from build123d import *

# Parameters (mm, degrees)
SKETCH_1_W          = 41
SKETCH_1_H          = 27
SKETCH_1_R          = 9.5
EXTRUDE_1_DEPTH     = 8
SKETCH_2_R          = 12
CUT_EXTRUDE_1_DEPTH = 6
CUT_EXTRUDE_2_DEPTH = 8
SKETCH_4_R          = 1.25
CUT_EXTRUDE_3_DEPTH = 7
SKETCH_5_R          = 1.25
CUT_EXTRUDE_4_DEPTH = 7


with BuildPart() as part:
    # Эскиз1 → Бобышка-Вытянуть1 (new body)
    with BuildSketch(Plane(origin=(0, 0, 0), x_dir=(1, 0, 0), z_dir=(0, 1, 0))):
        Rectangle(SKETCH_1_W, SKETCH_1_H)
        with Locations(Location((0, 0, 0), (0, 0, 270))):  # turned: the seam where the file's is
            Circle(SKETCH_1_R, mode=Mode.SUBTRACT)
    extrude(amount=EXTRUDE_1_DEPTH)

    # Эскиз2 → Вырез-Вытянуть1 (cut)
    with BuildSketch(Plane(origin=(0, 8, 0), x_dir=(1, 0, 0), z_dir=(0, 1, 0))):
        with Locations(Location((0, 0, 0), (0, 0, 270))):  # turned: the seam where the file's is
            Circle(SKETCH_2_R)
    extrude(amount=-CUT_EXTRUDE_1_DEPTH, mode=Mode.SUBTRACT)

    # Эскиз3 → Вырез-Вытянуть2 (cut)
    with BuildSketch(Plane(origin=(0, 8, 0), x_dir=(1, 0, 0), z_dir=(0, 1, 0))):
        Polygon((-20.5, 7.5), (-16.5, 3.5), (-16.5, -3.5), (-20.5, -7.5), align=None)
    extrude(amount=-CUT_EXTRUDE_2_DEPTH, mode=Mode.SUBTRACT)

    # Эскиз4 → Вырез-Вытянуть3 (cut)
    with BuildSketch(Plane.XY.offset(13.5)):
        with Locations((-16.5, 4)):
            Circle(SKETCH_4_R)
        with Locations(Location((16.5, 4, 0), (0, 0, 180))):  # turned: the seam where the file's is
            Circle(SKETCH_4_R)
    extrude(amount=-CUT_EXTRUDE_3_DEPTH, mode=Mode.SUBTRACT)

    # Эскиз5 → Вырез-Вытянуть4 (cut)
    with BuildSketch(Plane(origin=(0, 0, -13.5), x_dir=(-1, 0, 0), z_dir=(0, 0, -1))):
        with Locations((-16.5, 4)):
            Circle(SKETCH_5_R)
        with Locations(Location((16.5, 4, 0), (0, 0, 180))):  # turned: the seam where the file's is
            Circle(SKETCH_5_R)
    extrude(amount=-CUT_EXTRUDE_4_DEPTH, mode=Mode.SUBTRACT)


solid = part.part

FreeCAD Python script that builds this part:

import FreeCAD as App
import Part
import Sketcher
Q = App.Units.Quantity


def add_polygon(sketch, points):
    """Adds a closed chain of lines whose ends are joined by coincident constraints."""
    first, n = sketch.GeometryCount, len(points)
    for a, b in zip(points, points[1:] + points[:1]):
        sketch.addGeometry(Part.LineSegment(App.Vector(*a, 0), App.Vector(*b, 0)), False)
    for i in range(n):
        sketch.addConstraint(Sketcher.Constraint("Coincident", first + i, 2, first + (i + 1) % n, 1))

doc = App.newDocument("Part")
params = doc.addObject("Spreadsheet::Sheet", "Params")
for row, (alias, value) in enumerate([
    ("sketch1_diameter", "19 mm"),
    ("sketch1_width", "41 mm"),
    ("sketch1_height", "27 mm"),
    ("pad1_length", "8 mm"),
    ("sketch2_diameter", "24 mm"),
    ("pocket1_length", "6 mm"),
    ("sketch3_height", "15 mm"),
    ("sketch3_height2", "7 mm"),
    ("pocket2_length", "8 mm"),
    ("sketch4_diameter", "2.5 mm"),
    ("pocket3_length", "7 mm"),
    ("sketch5_diameter", "2.5 mm"),
    ("pocket4_length", "7 mm"),
], start=1):
    params.set(f"A{row}", alias)
    params.set(f"B{row}", "=" + value)
    params.setAlias(f"B{row}", alias)

body = doc.addObject("PartDesign::Body", "Body")

# Sketch on XZ plane
sketch1 = body.newObject("Sketcher::SketchObject", "Sketch")
sketch1.AttachmentSupport = (doc.getObject("XZ_Plane"), [""])
sketch1.MapMode = "FlatFace"
add_polygon(sketch1, [(-20.5, -13.5), (-20.5, 13.5), (20.5, 13.5), (20.5, -13.5)])  # lines 0-3
sketch1.addGeometry(Part.Circle(App.Vector(0, 0, 0), App.Vector(0, 0, 1), 9.5), False)  # 4
sketch1.addConstraint([
    Sketcher.Constraint("Vertical", 0),
    Sketcher.Constraint("Horizontal", 1),
    Sketcher.Constraint("Vertical", 2),
    Sketcher.Constraint("Horizontal", 3),
    Sketcher.Constraint("Coincident", 4, 3, -1, 1),
    Sketcher.Constraint("Symmetric", 0, 2, 2, 2, -1, 1),
    Sketcher.Constraint("Diameter", 4, Q("19 mm")),
    Sketcher.Constraint("DistanceX", 1, 1, 1, 2, Q("41 mm")),
    Sketcher.Constraint("DistanceY", 0, 1, 0, 2, Q("27 mm")),
])
sketch1.setExpression("Constraints[10]", "Params.sketch1_diameter")
sketch1.setExpression("Constraints[11]", "Params.sketch1_width")
sketch1.setExpression("Constraints[12]", "Params.sketch1_height")
pad1 = body.newObject("PartDesign::Pad", "Pad")
pad1.Profile = sketch1
pad1.setExpression("Length", "Params.pad1_length")
pad1.Reversed = True

# Sketch on XZ plane
sketch2 = body.newObject("Sketcher::SketchObject", "Sketch001")
sketch2.AttachmentSupport = (doc.getObject("XZ_Plane"), [""])
sketch2.MapMode = "FlatFace"
sketch2.AttachmentOffset = App.Placement(App.Vector(0, 0, -8), App.Rotation())
sketch2.addGeometry(Part.Circle(App.Vector(0, 0, 0), App.Vector(0, 0, 1), 12), False)
sketch2.addConstraint([
    Sketcher.Constraint("Coincident", 0, 3, -1, 1),
    Sketcher.Constraint("Diameter", 0, Q("24 mm")),
])
sketch2.setExpression("Constraints[1]", "Params.sketch2_diameter")
pocket1 = body.newObject("PartDesign::Pocket", "Pocket")
pocket1.Profile = sketch2
pocket1.setExpression("Length", "Params.pocket1_length")
pocket1.Reversed = True

# Sketch on XZ plane
sketch3 = body.newObject("Sketcher::SketchObject", "Sketch002")
sketch3.AttachmentSupport = (doc.getObject("XZ_Plane"), [""])
sketch3.MapMode = "FlatFace"
sketch3.AttachmentOffset = App.Placement(App.Vector(0, 0, -8), App.Rotation())
add_polygon(sketch3, [(-16.5, -3.5), (-20.5, -7.5), (-20.5, 7.5), (-16.5, 3.5)])  # lines 0-3
sketch3.addConstraint([
    Sketcher.Constraint("Vertical", 1),
    Sketcher.Constraint("Vertical", 3),
    Sketcher.Constraint("Perpendicular", 0, 2),
    Sketcher.Constraint("Equal", 0, 2),
    Sketcher.Constraint("DistanceY", 1, 1, 1, 2, Q("15 mm")),
    Sketcher.Constraint("DistanceY", 3, 2, 3, 1, Q("7 mm")),
    Sketcher.Constraint("DistanceX", 0, 2, -1, 1, Q("20.5 mm")),
    Sketcher.Constraint("DistanceY", 0, 2, -1, 1, Q("7.5 mm")),
])
sketch3.setExpression("Constraints[8]", "Params.sketch3_height")
sketch3.setExpression("Constraints[9]", "Params.sketch3_height2")
pocket2 = body.newObject("PartDesign::Pocket", "Pocket001")
pocket2.Profile = sketch3
pocket2.setExpression("Length", "Params.pocket2_length")
pocket2.Reversed = True

# Sketch on XY plane
sketch4 = body.newObject("Sketcher::SketchObject", "Sketch003")
sketch4.AttachmentSupport = (doc.getObject("XY_Plane"), [""])
sketch4.MapMode = "FlatFace"
sketch4.AttachmentOffset = App.Placement(App.Vector(0, 0, 13.5), App.Rotation())
sketch4.addGeometry([
    Part.Circle(App.Vector(-16.5, 4, 0), App.Vector(0, 0, 1), 1.25),
    Part.Circle(App.Vector(16.5, 4, 0), App.Vector(0, 0, 1), 1.25),
], False)
sketch4.addConstraint([
    Sketcher.Constraint("Equal", 0, 1),
    Sketcher.Constraint("Symmetric", 0, 3, 1, 3, -2),
    Sketcher.Constraint("Diameter", 0, Q("2.5 mm")),
    Sketcher.Constraint("DistanceY", -1, 1, 0, 3, Q("4 mm")),
    Sketcher.Constraint("DistanceX", 0, 3, 1, 3, Q("33 mm")),
])
sketch4.setExpression("Constraints[2]", "Params.sketch4_diameter")
pocket3 = body.newObject("PartDesign::Pocket", "Pocket002")
pocket3.Profile = sketch4
pocket3.setExpression("Length", "Params.pocket3_length")

# Sketch on XY plane
sketch5 = body.newObject("Sketcher::SketchObject", "Sketch004")
sketch5.AttachmentSupport = (doc.getObject("XY_Plane"), [""])
sketch5.MapMode = "FlatFace"
sketch5.AttachmentOffset = App.Placement(App.Vector(0, 0, -13.5), App.Rotation())
sketch5.addGeometry([
    Part.Circle(App.Vector(16.5, 4, 0), App.Vector(0, 0, 1), 1.25),
    Part.Circle(App.Vector(-16.5, 4, 0), App.Vector(0, 0, 1), 1.25),
], False)
sketch5.addConstraint([
    Sketcher.Constraint("Equal", 0, 1),
    Sketcher.Constraint("Symmetric", 0, 3, 1, 3, -2),
    Sketcher.Constraint("Diameter", 0, Q("2.5 mm")),
    Sketcher.Constraint("DistanceY", -1, 1, 0, 3, Q("4 mm")),
    Sketcher.Constraint("DistanceX", 1, 3, 0, 3, Q("33 mm")),
])
sketch5.setExpression("Constraints[2]", "Params.sketch5_diameter")
pocket4 = body.newObject("PartDesign::Pocket", "Pocket003")
pocket4.Profile = sketch5
pocket4.setExpression("Length", "Params.pocket4_length")
pocket4.Reversed = True

doc.recompute()
